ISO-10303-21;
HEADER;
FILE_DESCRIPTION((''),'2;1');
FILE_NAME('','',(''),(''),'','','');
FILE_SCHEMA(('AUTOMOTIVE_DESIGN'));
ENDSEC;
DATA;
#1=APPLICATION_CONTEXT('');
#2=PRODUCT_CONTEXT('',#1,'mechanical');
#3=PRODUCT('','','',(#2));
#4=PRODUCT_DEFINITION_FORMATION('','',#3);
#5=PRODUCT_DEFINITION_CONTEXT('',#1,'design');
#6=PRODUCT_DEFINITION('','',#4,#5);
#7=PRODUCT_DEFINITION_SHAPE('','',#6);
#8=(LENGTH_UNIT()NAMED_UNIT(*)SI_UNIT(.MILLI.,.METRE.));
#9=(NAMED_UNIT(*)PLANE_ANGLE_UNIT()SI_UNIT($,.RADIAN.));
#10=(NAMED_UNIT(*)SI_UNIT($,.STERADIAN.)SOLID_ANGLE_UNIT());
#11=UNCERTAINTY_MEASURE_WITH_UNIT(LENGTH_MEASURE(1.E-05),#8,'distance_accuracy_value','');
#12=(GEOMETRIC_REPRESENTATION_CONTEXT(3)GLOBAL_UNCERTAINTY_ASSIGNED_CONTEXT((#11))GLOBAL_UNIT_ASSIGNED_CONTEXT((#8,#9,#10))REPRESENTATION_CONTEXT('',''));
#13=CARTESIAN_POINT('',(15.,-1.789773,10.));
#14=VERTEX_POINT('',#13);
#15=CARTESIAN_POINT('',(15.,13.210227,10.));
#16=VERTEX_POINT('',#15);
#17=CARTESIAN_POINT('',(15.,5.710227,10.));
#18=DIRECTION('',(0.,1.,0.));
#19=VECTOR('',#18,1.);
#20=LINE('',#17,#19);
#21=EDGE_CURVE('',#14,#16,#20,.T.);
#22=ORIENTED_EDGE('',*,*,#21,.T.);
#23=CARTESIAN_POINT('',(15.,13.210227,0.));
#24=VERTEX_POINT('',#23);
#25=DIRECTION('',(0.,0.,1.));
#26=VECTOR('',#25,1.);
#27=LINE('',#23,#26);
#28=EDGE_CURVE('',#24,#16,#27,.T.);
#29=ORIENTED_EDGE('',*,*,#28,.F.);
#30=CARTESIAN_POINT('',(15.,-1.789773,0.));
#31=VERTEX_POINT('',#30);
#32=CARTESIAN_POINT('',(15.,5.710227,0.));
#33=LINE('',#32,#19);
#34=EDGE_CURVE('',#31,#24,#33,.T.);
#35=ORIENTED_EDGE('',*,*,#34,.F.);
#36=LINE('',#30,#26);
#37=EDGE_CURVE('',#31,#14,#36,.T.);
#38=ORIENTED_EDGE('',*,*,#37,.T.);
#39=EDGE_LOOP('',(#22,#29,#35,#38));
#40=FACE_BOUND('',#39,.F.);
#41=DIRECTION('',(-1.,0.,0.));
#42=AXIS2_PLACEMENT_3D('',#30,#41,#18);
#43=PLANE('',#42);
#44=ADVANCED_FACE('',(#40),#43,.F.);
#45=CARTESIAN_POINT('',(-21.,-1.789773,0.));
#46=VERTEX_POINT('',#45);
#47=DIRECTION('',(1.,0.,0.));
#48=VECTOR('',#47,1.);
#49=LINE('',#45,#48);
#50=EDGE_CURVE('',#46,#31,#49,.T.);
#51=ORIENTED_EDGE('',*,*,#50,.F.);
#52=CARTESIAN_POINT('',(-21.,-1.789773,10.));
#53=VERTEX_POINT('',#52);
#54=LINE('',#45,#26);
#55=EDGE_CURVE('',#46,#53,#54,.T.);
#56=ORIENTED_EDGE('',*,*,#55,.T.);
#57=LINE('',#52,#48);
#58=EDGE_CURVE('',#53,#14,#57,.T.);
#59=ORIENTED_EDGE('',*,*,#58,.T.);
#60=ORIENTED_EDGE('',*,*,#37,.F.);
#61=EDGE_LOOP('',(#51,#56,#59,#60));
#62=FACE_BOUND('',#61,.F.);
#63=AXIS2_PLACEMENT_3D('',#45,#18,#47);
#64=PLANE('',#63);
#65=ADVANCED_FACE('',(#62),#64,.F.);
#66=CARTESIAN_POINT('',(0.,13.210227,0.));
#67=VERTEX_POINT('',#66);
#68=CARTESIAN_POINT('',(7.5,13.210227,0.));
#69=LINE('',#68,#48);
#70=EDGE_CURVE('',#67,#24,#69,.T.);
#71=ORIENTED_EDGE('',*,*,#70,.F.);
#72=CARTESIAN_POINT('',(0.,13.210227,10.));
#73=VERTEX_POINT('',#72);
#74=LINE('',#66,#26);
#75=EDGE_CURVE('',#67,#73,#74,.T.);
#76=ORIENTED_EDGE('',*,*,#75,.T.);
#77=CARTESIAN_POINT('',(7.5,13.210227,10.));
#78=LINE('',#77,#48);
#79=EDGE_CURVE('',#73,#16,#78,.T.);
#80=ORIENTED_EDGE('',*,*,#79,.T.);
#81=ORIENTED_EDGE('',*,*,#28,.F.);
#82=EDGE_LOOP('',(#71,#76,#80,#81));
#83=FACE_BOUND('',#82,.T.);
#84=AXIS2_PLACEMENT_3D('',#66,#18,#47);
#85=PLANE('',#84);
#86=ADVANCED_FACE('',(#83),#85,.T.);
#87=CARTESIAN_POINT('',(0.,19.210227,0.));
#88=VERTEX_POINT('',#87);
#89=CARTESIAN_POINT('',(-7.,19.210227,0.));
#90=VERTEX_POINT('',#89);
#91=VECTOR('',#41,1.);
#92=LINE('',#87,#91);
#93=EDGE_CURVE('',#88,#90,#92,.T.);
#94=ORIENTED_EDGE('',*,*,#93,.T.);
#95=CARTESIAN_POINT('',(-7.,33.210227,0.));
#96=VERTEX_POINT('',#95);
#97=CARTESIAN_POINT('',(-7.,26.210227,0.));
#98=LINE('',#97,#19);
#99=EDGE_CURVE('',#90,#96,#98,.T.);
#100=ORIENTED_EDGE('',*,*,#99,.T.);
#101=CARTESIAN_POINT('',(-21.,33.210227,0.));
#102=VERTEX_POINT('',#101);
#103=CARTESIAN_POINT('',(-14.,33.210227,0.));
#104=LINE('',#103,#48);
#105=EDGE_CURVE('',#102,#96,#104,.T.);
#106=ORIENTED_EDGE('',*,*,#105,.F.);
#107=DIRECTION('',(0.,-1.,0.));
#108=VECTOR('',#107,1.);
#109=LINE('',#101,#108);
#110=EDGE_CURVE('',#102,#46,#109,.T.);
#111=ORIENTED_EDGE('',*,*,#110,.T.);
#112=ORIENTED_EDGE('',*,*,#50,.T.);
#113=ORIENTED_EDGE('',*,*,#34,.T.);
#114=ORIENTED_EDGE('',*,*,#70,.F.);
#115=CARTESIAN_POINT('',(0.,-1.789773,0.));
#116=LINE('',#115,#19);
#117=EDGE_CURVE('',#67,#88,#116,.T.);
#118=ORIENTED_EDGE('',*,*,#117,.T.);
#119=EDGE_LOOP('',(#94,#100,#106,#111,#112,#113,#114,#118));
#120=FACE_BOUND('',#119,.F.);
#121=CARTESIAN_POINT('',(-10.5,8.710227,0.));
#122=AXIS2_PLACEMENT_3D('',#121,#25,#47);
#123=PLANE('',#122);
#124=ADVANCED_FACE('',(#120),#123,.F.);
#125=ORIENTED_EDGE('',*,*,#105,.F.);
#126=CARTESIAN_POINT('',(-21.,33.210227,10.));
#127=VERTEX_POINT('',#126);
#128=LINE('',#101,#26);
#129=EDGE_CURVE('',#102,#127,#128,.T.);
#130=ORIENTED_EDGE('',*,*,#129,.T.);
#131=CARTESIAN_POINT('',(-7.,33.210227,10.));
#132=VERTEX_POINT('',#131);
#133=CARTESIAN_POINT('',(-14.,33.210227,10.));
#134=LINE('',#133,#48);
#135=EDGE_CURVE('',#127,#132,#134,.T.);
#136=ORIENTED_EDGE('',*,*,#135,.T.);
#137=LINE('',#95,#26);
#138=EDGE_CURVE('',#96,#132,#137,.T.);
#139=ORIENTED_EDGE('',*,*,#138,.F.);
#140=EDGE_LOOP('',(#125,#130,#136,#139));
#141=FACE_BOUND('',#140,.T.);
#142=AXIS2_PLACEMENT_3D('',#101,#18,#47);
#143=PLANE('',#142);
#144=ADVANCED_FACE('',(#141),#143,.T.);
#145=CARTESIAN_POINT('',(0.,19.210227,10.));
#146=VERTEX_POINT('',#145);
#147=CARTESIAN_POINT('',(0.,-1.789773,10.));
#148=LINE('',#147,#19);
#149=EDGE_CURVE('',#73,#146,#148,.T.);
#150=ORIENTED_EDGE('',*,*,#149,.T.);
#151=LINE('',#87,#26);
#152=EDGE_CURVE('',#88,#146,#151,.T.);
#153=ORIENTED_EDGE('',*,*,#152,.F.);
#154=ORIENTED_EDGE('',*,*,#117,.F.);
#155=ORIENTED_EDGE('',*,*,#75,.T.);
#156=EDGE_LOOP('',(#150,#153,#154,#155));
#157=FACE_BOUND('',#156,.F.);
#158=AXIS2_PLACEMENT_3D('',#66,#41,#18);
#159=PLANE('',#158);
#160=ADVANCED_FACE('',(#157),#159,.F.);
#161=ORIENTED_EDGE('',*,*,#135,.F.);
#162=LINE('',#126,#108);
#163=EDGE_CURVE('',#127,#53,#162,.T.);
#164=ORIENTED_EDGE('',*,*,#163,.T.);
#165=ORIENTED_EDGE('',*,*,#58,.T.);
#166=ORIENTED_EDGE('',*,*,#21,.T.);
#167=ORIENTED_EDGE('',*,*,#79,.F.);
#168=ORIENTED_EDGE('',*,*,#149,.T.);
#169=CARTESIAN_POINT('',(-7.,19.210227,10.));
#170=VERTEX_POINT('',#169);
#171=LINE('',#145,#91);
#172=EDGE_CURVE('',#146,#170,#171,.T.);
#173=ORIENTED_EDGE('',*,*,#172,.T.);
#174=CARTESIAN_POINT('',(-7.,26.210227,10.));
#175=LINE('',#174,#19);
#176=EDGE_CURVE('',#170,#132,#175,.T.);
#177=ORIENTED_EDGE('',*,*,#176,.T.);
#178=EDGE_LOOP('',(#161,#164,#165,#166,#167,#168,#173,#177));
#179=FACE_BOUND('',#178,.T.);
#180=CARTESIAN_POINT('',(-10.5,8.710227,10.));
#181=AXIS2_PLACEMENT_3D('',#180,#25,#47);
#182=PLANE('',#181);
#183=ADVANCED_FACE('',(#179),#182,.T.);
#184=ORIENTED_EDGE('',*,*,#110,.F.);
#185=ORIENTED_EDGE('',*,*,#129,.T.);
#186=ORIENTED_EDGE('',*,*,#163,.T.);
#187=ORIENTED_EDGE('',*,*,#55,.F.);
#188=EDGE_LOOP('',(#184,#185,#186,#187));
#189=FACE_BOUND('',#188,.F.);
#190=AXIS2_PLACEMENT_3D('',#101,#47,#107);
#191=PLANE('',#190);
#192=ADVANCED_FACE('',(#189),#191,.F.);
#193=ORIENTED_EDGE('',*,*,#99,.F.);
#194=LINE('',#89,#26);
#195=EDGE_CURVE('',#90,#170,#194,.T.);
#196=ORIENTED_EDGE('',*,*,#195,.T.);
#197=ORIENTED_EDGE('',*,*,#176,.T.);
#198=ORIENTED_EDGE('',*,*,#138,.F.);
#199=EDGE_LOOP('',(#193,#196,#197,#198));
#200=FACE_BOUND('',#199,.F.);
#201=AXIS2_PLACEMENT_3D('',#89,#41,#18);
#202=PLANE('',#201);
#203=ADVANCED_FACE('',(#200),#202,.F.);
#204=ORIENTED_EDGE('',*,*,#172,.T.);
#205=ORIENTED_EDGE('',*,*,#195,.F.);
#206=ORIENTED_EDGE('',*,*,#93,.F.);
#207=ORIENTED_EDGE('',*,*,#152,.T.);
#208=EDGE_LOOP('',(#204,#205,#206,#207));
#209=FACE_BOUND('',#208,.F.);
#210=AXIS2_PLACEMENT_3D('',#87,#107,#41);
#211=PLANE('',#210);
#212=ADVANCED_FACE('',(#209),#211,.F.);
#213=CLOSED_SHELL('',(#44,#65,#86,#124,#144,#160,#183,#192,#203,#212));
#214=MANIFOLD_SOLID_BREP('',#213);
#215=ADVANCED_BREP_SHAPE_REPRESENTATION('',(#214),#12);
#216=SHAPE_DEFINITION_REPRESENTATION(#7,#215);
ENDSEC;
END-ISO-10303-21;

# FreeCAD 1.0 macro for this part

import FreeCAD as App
import Part
import Sketcher

V = App.Vector
Q = App.Units.Quantity


def add_polygon(sketch, points):
    """Adds a closed chain of lines whose ends are joined by coincident constraints."""
    first, n = sketch.GeometryCount, len(points)
    for a, b in zip(points, points[1:] + points[:1]):
        sketch.addGeometry(Part.LineSegment(App.Vector(*a, 0), App.Vector(*b, 0)), False)
    for i in range(n):
        sketch.addConstraint(Sketcher.Constraint("Coincident", first + i, 2, first + (i + 1) % n, 1))

doc = App.newDocument("Part")
body = doc.addObject("PartDesign::Body", "Body")

sketch1 = body.newObject("Sketcher::SketchObject", "Sketch")
sketch1.AttachmentSupport = (doc.getObject("XY_Plane"), [""])
sketch1.MapMode = "FlatFace"
add_polygon(sketch1, [(-21, -2), (15, -2), (15, 13), (0, 13), (0, 19), (-7, 19), (-7, 33), (-21, 33)])
sketch1.addConstraint(Sketcher.Constraint("Horizontal", 0))
sketch1.addConstraint(Sketcher.Constraint("Vertical", 1))
sketch1.addConstraint(Sketcher.Constraint("Horizontal", 2))
sketch1.addConstraint(Sketcher.Constraint("Vertical", 3))
sketch1.addConstraint(Sketcher.Constraint("Horizontal", 4))
sketch1.addConstraint(Sketcher.Constraint("Vertical", 5))
sketch1.addConstraint(Sketcher.Constraint("Horizontal", 6))
sketch1.addConstraint(Sketcher.Constraint("Vertical", 7))
sketch1.addConstraint(Sketcher.Constraint("PointOnObject", 2, 2, -2))
sketch1.addConstraint(Sketcher.Constraint("Equal", 2, 1))
sketch1.addConstraint(Sketcher.Constraint("Equal", 6, 5))
sketch1.addConstraint(Sketcher.Constraint("DistanceX", 0, 1, 0, 2, Q("36 mm")))
sketch1.addConstraint(Sketcher.Constraint("DistanceX", 2, 2, 2, 1, Q("15 mm")))
sketch1.addConstraint(Sketcher.Constraint("DistanceX", 4, 2, 4, 1, Q("7 mm")))
sketch1.addConstraint(Sketcher.Constraint("DistanceY", 3, 1, 3, 2, Q("6 mm")))
sketch1.addConstraint(Sketcher.Constraint("DistanceY", 0, 2, -1, 1, Q("1.789773 mm")))
pad1 = body.newObject("PartDesign::Pad", "Pad")
pad1.Profile = sketch1
pad1.Length = 10

doc.recompute()
